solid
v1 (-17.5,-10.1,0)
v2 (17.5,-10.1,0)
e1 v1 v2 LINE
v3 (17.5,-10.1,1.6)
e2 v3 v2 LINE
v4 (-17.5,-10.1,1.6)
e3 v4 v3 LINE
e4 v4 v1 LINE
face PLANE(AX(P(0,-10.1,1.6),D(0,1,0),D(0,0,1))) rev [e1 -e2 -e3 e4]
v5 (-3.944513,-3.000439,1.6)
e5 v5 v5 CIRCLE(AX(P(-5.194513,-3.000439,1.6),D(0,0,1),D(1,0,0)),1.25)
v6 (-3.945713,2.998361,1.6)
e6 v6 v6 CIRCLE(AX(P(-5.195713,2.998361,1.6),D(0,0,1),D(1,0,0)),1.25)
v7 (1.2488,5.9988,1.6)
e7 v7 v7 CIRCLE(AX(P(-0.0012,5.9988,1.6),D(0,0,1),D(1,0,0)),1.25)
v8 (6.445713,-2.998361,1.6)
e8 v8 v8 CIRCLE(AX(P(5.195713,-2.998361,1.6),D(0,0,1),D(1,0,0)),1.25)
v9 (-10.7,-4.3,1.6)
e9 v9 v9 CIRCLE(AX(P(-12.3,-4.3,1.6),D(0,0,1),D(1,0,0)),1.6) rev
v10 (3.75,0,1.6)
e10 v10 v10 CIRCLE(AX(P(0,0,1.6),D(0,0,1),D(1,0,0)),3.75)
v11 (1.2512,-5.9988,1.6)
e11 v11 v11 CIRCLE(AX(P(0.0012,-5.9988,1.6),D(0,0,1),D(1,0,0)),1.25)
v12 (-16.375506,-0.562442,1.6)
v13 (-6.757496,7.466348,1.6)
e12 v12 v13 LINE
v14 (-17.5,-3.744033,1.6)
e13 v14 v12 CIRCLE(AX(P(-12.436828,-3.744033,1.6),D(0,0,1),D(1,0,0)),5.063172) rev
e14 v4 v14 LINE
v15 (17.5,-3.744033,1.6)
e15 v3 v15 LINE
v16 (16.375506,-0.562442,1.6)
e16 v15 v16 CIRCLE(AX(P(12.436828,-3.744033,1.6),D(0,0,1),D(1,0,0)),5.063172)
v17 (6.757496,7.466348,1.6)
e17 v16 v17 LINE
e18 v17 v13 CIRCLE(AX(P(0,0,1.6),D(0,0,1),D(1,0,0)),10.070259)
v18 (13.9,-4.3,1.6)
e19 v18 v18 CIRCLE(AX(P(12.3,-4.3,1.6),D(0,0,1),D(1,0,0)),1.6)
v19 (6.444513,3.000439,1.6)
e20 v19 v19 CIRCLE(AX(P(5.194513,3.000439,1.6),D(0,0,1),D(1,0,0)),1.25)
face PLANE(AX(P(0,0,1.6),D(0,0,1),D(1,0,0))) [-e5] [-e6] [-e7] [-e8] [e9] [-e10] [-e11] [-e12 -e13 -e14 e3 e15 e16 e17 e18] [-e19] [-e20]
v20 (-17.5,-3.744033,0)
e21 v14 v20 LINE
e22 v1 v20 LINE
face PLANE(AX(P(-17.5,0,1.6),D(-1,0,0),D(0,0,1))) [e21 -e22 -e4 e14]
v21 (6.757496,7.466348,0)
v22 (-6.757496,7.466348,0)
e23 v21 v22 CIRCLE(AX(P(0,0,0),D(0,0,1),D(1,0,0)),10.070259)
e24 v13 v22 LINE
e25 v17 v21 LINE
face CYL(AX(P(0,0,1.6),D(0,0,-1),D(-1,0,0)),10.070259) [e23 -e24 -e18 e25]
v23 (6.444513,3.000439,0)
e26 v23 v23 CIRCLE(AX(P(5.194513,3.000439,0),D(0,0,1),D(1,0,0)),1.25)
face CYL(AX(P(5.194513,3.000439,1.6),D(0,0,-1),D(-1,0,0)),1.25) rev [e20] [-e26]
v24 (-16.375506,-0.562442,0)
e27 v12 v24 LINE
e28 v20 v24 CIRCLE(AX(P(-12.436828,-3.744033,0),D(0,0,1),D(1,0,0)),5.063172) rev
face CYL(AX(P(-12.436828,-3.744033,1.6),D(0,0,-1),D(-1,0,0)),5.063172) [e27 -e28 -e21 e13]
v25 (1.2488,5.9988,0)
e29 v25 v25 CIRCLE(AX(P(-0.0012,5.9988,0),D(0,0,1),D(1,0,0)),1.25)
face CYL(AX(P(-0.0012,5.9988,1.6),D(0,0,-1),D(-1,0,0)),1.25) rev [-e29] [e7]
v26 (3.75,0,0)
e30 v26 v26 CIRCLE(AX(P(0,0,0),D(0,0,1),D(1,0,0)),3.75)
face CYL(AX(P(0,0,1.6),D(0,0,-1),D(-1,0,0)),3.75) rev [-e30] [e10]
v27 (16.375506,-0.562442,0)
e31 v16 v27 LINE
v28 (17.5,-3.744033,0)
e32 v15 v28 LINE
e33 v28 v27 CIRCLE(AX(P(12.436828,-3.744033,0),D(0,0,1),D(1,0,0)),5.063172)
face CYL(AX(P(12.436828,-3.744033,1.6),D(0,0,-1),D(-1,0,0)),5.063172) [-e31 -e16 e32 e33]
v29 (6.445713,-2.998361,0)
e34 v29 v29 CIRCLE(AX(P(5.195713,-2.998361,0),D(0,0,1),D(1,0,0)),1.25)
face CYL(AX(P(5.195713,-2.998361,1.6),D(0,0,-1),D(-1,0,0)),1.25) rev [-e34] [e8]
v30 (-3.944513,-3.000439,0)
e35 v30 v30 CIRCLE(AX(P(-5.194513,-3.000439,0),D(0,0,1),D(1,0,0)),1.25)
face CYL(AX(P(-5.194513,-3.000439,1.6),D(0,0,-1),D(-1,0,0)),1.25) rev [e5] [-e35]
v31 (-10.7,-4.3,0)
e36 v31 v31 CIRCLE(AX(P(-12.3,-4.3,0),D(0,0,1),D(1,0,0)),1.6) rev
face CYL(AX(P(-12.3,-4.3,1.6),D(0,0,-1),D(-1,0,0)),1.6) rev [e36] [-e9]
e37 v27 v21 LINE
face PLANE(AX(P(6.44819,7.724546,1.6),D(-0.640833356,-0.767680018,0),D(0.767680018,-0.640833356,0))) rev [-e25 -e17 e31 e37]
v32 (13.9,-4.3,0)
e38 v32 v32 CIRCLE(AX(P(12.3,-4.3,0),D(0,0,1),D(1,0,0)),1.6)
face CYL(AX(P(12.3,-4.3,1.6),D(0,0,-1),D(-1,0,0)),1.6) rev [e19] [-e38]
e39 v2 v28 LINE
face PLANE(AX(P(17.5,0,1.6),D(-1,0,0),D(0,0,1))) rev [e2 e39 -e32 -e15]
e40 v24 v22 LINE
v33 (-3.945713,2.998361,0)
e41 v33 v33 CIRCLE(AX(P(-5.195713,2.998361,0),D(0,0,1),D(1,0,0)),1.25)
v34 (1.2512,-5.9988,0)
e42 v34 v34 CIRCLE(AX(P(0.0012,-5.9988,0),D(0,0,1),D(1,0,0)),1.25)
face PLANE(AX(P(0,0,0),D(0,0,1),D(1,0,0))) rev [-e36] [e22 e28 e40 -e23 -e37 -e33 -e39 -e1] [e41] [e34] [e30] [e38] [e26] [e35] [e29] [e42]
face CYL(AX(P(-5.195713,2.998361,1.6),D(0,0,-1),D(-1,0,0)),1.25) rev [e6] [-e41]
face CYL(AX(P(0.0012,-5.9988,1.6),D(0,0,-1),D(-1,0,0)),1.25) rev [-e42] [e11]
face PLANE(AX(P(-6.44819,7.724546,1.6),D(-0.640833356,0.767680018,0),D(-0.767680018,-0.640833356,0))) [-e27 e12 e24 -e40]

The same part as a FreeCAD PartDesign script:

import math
import FreeCAD as App
import Part
import Sketcher

doc = App.newDocument("Part")
body = doc.addObject("PartDesign::Body", "Body")

# Sketch on XY plane
sketch1 = doc.addObject("Sketcher::SketchObject", "Sketch")
body.addObject(sketch1)
sketch1.AttachmentSupport = (doc.XY_Plane, [""])
sketch1.MapMode = "FlatFace"
sketch1.addGeometry(Part.LineSegment(App.Vector(-17.5, -10.1, 0), App.Vector(17.5, -10.1, 0)), False)
sketch1.addGeometry(Part.LineSegment(App.Vector(17.5, -10.1, 0), App.Vector(17.5, -3.7, 0)), False)
sketch1.addGeometry(Part.ArcOfCircle(Part.Circle(App.Vector(12.4, -3.7, 0), App.Vector(0, 0, 1), 5.1), math.radians(0), math.radians(39)), False)
sketch1.addGeometry(Part.LineSegment(App.Vector(16.4, -0.6, 0), App.Vector(6.8, 7.5, 0)), False)
sketch1.addGeometry(Part.ArcOfCircle(Part.Circle(App.Vector(0, 0, 0), App.Vector(0, 0, 1), 10.1), math.radians(48), math.radians(132)), False)
sketch1.addGeometry(Part.LineSegment(App.Vector(-6.8, 7.5, 0), App.Vector(-16.4, -0.6, 0)), False)
sketch1.addGeometry(Part.ArcOfCircle(Part.Circle(App.Vector(-12.4, -3.7, 0), App.Vector(0, 0, 1), 5.1), math.radians(141), math.radians(180)), False)
sketch1.addGeometry(Part.LineSegment(App.Vector(-17.5, -3.7, 0), App.Vector(-17.5, -10.1, 0)), False)
sketch1.addGeometry(Part.Circle(App.Vector(-12.3, -4.3, 0), App.Vector(0, 0, 1), 1.6), False)
sketch1.addGeometry(Part.Circle(App.Vector(-5.2, -3, 0), App.Vector(0, 0, 1), 1.2), False)
sketch1.addGeometry(Part.Circle(App.Vector(0, -6, 0), App.Vector(0, 0, 1), 1.2), False)
sketch1.addGeometry(Part.Circle(App.Vector(12.3, -4.3, 0), App.Vector(0, 0, 1), 1.6), False)
sketch1.addGeometry(Part.Circle(App.Vector(5.2, -3, 0), App.Vector(0, 0, 1), 1.2), False)
sketch1.addGeometry(Part.Circle(App.Vector(0, 0, 0), App.Vector(0, 0, 1), 3.8), False)
sketch1.addGeometry(Part.Circle(App.Vector(-5.2, 3, 0), App.Vector(0, 0, 1), 1.3), False)
sketch1.addGeometry(Part.Circle(App.Vector(0, 6, 0), App.Vector(0, 0, 1), 1.2), False)
sketch1.addGeometry(Part.Circle(App.Vector(5.2, 3, 0), App.Vector(0, 0, 1), 1.2), False)
sketch1.addConstraint(Sketcher.Constraint("Coincident", 0, 2, 1, 1))
sketch1.addConstraint(Sketcher.Constraint("Tangent", 1, 2, 2, 1))
sketch1.addConstraint(Sketcher.Constraint("Coincident", 2, 2, 3, 1))
sketch1.addConstraint(Sketcher.Constraint("Coincident", 3, 2, 4, 1))
sketch1.addConstraint(Sketcher.Constraint("Coincident", 4, 2, 5, 1))
sketch1.addConstraint(Sketcher.Constraint("Coincident", 5, 2, 6, 1))
sketch1.addConstraint(Sketcher.Constraint("Tangent", 6, 2, 7, 1))
sketch1.addConstraint(Sketcher.Constraint("Coincident", 7, 2, 0, 1))
sketch1.addConstraint(Sketcher.Constraint("Horizontal", 0))
sketch1.addConstraint(Sketcher.Constraint("Vertical", 1))
sketch1.addConstraint(Sketcher.Constraint("Vertical", 7))
sketch1.addConstraint(Sketcher.Constraint("Coincident", 4, 3, -1, 1))
sketch1.addConstraint(Sketcher.Constraint("Coincident", 13, 3, -1, 1))
sketch1.addConstraint(Sketcher.Constraint("Equal", 2, 6))
sketch1.addConstraint(Sketcher.Constraint("Equal", 9, 10))
sketch1.addConstraint(Sketcher.Constraint("Equal", 8, 11))
sketch1.addConstraint(Sketcher.Constraint("Equal", 10, 12))
sketch1.addConstraint(Sketcher.Constraint("Equal", 12, 14))
sketch1.addConstraint(Sketcher.Constraint("Equal", 14, 15))
sketch1.addConstraint(Sketcher.Constraint("Equal", 15, 16))
sketch1.addConstraint(Sketcher.Constraint("Symmetric", 12, 3, 14, 3, -1, 1))
sketch1.addConstraint(Sketcher.Constraint("Symmetric", 10, 3, 15, 3, -1, 1))
sketch1.addConstraint(Sketcher.Constraint("Symmetric", 9, 3, 16, 3, -1, 1))
sketch1.addConstraint(Sketcher.Constraint("Symmetric", 2, 3, 6, 3, -2))
sketch1.addConstraint(Sketcher.Constraint("Symmetric", 8, 3, 11, 3, -2))
sketch1.addConstraint(Sketcher.Constraint("Horizontal", 3, 2, 4, 2))
sketch1.addConstraint(Sketcher.Constraint("Horizontal", 2, 2, 5, 2))
sketch1.addConstraint(Sketcher.Constraint("Diameter", 8, 3.2))
sketch1.addConstraint(Sketcher.Constraint("Diameter", 9, 2.5))
sketch1.addConstraint(Sketcher.Constraint("Diameter", 13, 7.5))
sketch1.addConstraint(Sketcher.Constraint("DistanceX", 0, 1, 0, 2, 35.0))
sketch1.addConstraint(Sketcher.Constraint("DistanceX", 8, 3, -1, 1, 12.3))
sketch1.addConstraint(Sketcher.Constraint("DistanceY", 8, 3, -1, 1, 4.3))
sketch1.addConstraint(Sketcher.Constraint("DistanceY", 0, 2, -1, 1, 10.1))
sketch1.addConstraint(Sketcher.Constraint("Radius", 4, 10.070259))
sketch1.addConstraint(Sketcher.Constraint("Radius", 2, 5.063172))
sketch1.addConstraint(Sketcher.Constraint("DistanceX", -1, 1, 10, 3, 0.0012))
sketch1.addConstraint(Sketcher.Constraint("DistanceY", 10, 3, -1, 1, 5.9988))
sketch1.addConstraint(Sketcher.Constraint("DistanceX", 14, 3, 9, 3, 0.0012))
sketch1.addConstraint(Sketcher.Constraint("DistanceY", 9, 3, 14, 3, 5.9988))
sketch1.addConstraint(Sketcher.Constraint("Distance", 3, 12.52867))
sketch1.addConstraint(Sketcher.Constraint("DistanceY", 1, 1, 1, 2, 6.355967))
sketch1.addConstraint(Sketcher.Constraint("DistanceY", 9, 3, -1, 1, 3.000439))
sketch1.addConstraint(Sketcher.Constraint("DistanceY", 2, 2, -1, 1, 0.562442))
sketch1.addConstraint(Sketcher.Constraint("DistanceX", 9, 3, 2, 3, 17.631341))
pad1 = doc.addObject("PartDesign::Pad", "Pad")
body.addObject(pad1)
pad1.Profile = sketch1
pad1.Length = 1.6

doc.recompute()
